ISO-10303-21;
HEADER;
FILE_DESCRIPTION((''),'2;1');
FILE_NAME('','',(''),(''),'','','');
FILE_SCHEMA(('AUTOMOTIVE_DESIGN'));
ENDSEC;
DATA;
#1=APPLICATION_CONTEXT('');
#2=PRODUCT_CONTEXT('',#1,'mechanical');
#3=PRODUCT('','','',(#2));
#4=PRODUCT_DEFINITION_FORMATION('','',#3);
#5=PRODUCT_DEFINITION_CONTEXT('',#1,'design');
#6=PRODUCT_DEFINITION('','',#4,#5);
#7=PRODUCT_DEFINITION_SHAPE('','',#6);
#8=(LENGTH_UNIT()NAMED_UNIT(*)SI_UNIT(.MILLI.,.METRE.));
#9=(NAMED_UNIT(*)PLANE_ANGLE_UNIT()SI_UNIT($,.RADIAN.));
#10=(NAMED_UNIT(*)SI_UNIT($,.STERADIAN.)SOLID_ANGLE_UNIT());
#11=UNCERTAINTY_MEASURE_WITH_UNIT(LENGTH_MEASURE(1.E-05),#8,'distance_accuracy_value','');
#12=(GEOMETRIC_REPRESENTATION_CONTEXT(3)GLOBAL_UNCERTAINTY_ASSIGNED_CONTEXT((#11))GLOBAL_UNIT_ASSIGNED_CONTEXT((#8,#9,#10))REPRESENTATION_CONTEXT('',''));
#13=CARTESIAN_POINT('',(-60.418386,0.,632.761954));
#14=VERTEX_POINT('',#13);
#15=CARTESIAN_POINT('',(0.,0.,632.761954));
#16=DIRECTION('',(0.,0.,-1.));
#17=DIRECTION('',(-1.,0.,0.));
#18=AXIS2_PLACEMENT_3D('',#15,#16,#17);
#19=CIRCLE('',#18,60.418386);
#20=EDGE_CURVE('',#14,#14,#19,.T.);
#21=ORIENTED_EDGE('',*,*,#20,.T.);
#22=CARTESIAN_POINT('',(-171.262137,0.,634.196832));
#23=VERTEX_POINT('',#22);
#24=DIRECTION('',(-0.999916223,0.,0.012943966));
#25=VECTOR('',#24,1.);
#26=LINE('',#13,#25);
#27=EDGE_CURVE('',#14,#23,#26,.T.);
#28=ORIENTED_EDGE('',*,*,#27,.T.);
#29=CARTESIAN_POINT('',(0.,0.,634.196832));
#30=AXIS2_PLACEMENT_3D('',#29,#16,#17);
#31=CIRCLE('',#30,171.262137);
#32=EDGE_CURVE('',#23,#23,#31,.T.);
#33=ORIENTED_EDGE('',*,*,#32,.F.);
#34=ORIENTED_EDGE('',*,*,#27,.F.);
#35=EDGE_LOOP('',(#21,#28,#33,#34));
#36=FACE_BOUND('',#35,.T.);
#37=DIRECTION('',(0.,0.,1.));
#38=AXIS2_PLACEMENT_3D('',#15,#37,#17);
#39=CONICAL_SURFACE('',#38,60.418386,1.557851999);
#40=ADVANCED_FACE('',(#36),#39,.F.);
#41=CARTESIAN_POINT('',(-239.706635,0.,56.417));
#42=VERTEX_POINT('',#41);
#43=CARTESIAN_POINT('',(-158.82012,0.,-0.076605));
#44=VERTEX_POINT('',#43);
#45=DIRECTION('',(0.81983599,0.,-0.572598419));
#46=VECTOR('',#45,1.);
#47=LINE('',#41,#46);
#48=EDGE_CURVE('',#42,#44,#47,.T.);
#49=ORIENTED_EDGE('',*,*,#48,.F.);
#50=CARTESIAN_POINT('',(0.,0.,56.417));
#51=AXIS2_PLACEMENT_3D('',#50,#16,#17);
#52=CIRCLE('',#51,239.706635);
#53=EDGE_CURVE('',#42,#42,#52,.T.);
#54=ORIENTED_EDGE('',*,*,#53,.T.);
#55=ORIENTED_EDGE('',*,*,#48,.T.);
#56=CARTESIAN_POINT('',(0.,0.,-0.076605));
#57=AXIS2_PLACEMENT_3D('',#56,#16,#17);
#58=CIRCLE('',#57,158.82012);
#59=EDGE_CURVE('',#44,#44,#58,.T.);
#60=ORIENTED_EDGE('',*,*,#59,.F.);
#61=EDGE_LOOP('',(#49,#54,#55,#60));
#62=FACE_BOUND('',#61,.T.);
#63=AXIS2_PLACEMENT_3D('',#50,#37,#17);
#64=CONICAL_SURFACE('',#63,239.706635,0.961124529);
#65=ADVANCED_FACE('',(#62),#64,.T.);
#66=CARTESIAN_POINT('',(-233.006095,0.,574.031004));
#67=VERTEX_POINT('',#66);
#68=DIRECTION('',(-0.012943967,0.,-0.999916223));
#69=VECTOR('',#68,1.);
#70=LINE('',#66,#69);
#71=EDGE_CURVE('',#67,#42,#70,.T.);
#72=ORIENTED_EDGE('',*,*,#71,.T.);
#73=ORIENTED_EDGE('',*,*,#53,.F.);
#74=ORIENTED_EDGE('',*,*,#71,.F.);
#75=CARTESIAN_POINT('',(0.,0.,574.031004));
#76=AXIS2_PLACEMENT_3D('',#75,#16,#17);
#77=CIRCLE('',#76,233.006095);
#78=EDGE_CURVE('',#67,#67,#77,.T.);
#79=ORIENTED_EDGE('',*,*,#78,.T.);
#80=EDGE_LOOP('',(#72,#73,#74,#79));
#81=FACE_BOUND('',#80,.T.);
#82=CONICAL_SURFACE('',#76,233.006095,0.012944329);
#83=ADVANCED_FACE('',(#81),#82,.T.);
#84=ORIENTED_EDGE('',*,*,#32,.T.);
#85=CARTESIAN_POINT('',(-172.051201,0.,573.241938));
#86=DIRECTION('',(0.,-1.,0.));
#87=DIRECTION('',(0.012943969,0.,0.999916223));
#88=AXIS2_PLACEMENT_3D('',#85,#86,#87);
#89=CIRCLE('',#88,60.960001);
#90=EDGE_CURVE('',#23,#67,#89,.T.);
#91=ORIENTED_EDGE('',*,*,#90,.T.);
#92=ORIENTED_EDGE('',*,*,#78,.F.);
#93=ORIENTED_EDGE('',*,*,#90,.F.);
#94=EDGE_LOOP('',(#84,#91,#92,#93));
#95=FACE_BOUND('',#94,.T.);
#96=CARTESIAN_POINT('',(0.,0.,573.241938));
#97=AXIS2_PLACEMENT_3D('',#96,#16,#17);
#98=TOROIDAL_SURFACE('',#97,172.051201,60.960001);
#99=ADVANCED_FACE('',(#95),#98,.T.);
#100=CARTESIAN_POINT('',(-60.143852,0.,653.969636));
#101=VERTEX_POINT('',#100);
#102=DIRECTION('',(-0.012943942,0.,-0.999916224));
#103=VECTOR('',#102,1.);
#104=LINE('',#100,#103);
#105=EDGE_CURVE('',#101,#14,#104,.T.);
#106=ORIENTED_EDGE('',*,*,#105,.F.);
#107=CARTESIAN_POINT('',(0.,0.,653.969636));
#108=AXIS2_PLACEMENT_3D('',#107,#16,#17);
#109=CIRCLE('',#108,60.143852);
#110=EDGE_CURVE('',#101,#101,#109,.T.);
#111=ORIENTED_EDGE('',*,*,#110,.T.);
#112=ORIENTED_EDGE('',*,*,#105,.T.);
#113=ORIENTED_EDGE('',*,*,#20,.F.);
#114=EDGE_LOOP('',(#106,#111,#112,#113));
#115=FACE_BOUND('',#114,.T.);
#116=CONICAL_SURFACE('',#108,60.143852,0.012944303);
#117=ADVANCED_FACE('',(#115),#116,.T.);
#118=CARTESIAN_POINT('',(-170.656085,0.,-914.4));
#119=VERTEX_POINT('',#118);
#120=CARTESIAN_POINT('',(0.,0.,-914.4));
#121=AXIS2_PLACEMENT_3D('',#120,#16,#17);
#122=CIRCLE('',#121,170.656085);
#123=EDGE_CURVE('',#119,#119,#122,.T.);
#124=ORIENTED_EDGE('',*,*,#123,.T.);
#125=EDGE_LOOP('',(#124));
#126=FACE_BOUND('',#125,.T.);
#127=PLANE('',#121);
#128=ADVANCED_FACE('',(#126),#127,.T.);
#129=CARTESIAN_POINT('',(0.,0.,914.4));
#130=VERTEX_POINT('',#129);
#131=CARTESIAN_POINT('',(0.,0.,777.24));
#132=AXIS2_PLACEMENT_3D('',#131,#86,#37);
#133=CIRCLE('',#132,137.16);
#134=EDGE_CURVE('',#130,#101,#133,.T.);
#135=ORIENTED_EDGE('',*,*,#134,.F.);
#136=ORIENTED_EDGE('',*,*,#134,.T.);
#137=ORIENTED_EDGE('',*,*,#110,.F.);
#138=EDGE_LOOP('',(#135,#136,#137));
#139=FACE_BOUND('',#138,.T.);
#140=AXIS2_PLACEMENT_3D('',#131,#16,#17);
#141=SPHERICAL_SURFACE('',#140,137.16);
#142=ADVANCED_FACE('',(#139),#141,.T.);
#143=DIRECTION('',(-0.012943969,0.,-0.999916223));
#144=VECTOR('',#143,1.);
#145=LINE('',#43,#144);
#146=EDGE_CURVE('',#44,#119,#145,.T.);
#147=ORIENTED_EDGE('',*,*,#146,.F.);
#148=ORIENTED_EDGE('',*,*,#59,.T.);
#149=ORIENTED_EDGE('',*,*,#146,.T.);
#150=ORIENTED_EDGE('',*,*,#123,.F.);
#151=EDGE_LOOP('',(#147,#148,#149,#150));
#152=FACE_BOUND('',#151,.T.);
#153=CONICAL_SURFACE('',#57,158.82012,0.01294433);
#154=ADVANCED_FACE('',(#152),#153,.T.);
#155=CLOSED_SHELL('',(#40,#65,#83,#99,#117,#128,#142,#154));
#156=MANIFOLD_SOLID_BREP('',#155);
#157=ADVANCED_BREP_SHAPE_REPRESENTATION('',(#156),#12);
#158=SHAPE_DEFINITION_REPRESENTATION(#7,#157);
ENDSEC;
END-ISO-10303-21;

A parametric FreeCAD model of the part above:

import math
import FreeCAD as App
import Part
import Sketcher
from FreeCAD import Vector
Q = App.Units.Quantity

doc = App.newDocument("Part")
body = doc.addObject("PartDesign::Body", "Body")

# Sketch on XZ plane
sketch1 = body.newObject("Sketcher::SketchObject", "Sketch")
sketch1.AttachmentSupport = (doc.getObject("XZ_Plane"), [""])
sketch1.MapMode = "FlatFace"
sketch1.addGeometry([
    Part.LineSegment(Vector(-171, -914, 0), Vector(0, -914, 0)),  # 0
    Part.LineSegment(Vector(0, -914, 0), Vector(0, 914, 0)),  # 1
    Part.ArcOfCircle(Part.Circle(Vector(0, 777, 0), Vector(0, 0, 1), 137), math.radians(90), math.radians(244)),  # 2
    Part.LineSegment(Vector(-60, 654, 0), Vector(-60, 633, 0)),  # 3
    Part.LineSegment(Vector(-60, 633, 0), Vector(-171, 634, 0)),  # 4
    Part.ArcOfCircle(Part.Circle(Vector(-172, 573, 0), Vector(0, 0, 1), 61), math.radians(89), math.radians(179)),  # 5
    Part.LineSegment(Vector(-233, 574, 0), Vector(-240, 56, 0)),  # 6
    Part.LineSegment(Vector(-240, 56, 0), Vector(-159, 0, 0)),  # 7
    Part.LineSegment(Vector(-159, 0, 0), Vector(-171, -914, 0)),  # 8
], False)
sketch1.addConstraint([
    Sketcher.Constraint("Coincident", 0, 2, 1, 1),
    Sketcher.Constraint("Coincident", 1, 2, 2, 1),
    Sketcher.Constraint("Coincident", 2, 2, 3, 1),
    Sketcher.Constraint("Coincident", 3, 2, 4, 1),
    Sketcher.Constraint("Tangent", 4, 2, 5, 1),
    Sketcher.Constraint("Tangent", 5, 2, 6, 1),
    Sketcher.Constraint("Coincident", 6, 2, 7, 1),
    Sketcher.Constraint("Coincident", 7, 2, 8, 1),
    Sketcher.Constraint("Coincident", 8, 2, 0, 1),
    Sketcher.Constraint("Horizontal", 0),
    Sketcher.Constraint("Vertical", 1),
    Sketcher.Constraint("Symmetric", 0, 2, 1, 2, -1, 1),
    Sketcher.Constraint("PointOnObject", 2, 3, -2),
    Sketcher.Constraint("Perpendicular", 3, 4),
    Sketcher.Constraint("Perpendicular", 4, 6),
    Sketcher.Constraint("Parallel", 6, 8),
    Sketcher.Constraint("Radius", 2, Q("5.4 in")),
    Sketcher.Constraint("Radius", 5, Q("2.4 in")),
    Sketcher.Constraint("DistanceY", 1, 1, 1, 2, Q("72 in")),
    Sketcher.Constraint("Distance", 8, Q("36 in")),
    Sketcher.Constraint("DistanceX", 5, 2, 2, 2, Q("6.8056001 in")),
    Sketcher.Constraint("DistanceX", 5, 3, -1, 1, Q("172.051201 mm")),
    Sketcher.Constraint("DistanceY", -1, 1, 6, 2, Q("56.417 mm")),
    Sketcher.Constraint("DistanceX", 6, 2, 4, 2, Q("68.444498 mm")),
    Sketcher.Constraint("Distance", 3, Q("21.209459 mm")),
    Sketcher.Constraint("DistanceX", 0, 1, 0, 2, Q("170.656085 mm")),
])
revolution = body.newObject("PartDesign::Revolution", "Revolution")
revolution.Profile = sketch1
revolution.ReferenceAxis = (sketch1, ["V_Axis"])
revolution.Angle = 360

doc.recompute()
